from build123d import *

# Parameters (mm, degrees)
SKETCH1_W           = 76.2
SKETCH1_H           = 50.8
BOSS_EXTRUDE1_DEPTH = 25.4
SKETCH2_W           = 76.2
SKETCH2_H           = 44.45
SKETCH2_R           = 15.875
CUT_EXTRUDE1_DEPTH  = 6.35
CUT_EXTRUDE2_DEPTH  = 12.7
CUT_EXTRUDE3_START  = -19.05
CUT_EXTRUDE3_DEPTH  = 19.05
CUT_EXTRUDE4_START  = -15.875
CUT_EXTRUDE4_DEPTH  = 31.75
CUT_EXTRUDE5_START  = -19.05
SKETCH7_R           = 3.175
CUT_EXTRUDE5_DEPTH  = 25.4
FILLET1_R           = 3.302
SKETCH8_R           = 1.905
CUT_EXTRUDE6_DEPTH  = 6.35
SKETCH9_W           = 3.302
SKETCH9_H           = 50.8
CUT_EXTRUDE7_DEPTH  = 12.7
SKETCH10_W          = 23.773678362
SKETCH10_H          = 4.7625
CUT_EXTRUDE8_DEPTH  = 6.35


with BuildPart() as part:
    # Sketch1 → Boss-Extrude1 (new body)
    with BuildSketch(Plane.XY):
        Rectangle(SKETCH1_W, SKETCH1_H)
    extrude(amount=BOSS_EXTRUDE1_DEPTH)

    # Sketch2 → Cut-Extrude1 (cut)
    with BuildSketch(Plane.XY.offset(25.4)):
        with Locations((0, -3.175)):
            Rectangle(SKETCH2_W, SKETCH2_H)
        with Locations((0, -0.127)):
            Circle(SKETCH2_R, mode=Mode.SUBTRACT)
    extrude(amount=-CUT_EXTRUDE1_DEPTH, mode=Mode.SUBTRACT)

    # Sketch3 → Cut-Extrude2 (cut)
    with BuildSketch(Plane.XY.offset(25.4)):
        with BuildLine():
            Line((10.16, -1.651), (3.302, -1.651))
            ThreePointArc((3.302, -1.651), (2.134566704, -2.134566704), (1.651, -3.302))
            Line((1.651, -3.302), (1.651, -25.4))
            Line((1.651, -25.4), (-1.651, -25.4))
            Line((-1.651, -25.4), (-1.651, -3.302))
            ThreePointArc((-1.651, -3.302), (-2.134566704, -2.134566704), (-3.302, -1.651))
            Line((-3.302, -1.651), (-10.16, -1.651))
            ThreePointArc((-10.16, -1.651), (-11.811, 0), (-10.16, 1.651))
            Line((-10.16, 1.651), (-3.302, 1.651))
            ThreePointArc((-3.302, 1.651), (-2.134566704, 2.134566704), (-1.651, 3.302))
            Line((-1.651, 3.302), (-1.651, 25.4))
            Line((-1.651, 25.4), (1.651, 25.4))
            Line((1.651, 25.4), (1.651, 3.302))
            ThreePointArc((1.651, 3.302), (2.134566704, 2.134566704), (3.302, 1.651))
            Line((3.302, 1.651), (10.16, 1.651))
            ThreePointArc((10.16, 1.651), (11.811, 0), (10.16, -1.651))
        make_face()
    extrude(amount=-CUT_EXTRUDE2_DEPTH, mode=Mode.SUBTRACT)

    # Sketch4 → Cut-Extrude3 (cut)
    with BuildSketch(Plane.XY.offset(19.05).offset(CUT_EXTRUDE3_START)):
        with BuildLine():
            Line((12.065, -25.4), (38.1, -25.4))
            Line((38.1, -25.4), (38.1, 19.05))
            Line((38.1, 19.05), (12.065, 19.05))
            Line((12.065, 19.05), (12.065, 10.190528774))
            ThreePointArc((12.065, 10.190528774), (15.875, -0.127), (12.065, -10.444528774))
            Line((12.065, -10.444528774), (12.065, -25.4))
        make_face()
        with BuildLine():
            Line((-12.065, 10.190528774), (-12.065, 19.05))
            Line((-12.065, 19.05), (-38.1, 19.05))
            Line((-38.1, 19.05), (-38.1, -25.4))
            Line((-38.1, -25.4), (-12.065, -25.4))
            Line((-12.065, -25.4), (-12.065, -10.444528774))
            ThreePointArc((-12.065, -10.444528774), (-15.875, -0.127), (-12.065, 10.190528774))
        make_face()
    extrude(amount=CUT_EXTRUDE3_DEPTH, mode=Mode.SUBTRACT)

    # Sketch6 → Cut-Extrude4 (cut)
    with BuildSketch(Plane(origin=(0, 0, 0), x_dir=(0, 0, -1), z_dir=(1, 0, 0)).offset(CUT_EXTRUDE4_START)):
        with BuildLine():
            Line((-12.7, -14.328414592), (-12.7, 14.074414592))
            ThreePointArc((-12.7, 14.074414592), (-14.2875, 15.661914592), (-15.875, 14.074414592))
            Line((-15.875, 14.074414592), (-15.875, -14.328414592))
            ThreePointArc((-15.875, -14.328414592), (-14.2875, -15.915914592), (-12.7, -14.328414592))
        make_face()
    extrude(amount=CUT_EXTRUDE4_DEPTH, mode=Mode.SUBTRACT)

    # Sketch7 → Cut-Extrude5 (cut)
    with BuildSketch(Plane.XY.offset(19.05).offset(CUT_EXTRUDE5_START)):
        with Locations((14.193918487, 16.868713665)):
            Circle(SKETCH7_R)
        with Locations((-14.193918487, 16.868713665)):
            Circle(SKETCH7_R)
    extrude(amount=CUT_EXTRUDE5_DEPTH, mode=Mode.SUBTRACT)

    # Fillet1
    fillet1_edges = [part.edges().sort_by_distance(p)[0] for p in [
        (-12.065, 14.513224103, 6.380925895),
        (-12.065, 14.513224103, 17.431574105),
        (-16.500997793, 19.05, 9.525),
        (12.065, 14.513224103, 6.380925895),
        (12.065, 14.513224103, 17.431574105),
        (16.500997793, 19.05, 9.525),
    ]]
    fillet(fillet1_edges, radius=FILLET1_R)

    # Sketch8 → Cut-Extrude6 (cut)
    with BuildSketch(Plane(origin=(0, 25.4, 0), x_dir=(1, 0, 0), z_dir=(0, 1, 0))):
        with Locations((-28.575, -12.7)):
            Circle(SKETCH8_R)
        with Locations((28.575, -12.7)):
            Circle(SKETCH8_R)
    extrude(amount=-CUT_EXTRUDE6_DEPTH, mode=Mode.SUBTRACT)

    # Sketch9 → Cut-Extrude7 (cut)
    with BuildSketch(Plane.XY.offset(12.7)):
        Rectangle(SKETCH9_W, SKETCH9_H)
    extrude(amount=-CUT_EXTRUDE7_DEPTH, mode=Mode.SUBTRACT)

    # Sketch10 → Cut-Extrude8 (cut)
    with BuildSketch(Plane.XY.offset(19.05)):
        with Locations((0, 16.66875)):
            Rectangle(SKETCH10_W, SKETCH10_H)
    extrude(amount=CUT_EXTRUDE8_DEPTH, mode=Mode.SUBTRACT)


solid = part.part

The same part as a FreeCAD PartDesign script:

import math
import FreeCAD as App
import Part
import Sketcher
Q = App.Units.Quantity


def edges_at(feature, points):
    """Names of the edges that pass closest to the given points."""
    edges = feature.Shape.Edges
    near = lambda p: min(range(len(edges)), key=lambda i: edges[i].distToShape(Part.Vertex(*p))[0])
    return sorted({f"Edge{near(p) + 1}" for p in points})


def add_polygon(sketch, points):
    """Adds a closed chain of lines whose ends are joined by coincident constraints."""
    first, n = sketch.GeometryCount, len(points)
    for a, b in zip(points, points[1:] + points[:1]):
        sketch.addGeometry(Part.LineSegment(App.Vector(*a, 0), App.Vector(*b, 0)), False)
    for i in range(n):
        sketch.addConstraint(Sketcher.Constraint("Coincident", first + i, 2, first + (i + 1) % n, 1))

doc = App.newDocument("Part")
params = doc.addObject("Spreadsheet::Sheet", "Params")
for row, (alias, value) in enumerate([
    ("sketch1_width", "3 in"),
    ("sketch1_height", "2 in"),
    ("pad1_length", "1 in"),
    ("sketch2_diameter", "1.25 in"),
    ("sketch2_width", "3 in"),
    ("sketch2_height", "1.75 in"),
    ("pocket1_length", "0.25 in"),
    ("sketch3_radius", "0.065 in"),
    ("sketch3_width", "0.27 in"),
    ("sketch3_width2", "0.13 in"),
    ("pocket2_length", "0.5 in"),
    ("sketch4_radius", "0.625 in"),
    ("sketch4_height", "1.75 in"),
    ("sketch4_width", "1.025 in"),
    ("pocket3_length", "0.75 in"),
    ("sketch5_radius", "0.0625 in"),
    ("pocket4_length", "1.25 in"),
    ("sketch6_diameter", "0.25 in"),
    ("pocket5_length", "1 in"),
    ("fillet_radius", "0.13 in"),
    ("sketch7_diameter", "0.15 in"),
    ("pocket6_length", "0.25 in"),
    ("sketch8_height", "2 in"),
    ("sketch8_width", "0.13 in"),
    ("pocket7_length", "0.5 in"),
    ("sketch9_height", "0.1875 in"),
    ("pocket8_length", "0.25 in"),
], start=1):
    params.set(f"A{row}", alias)
    params.set(f"B{row}", "=" + value)
    params.setAlias(f"B{row}", alias)

body = doc.addObject("PartDesign::Body", "Body")
body.AllowCompound = True

# Sketch on XY plane
sketch1 = doc.addObject("Sketcher::SketchObject", "Sketch")
body.addObject(sketch1)
sketch1.AttachmentSupport = (doc.XY_Plane, [""])
sketch1.MapMode = "FlatFace"
add_polygon(sketch1, [(-38.1, 25.4), (-38.1, -25.4), (38.1, -25.4), (38.1, 25.4)])  # lines 0-3
sketch1.addConstraint([
    Sketcher.Constraint("Vertical", 0),
    Sketcher.Constraint("Horizontal", 1),
    Sketcher.Constraint("Vertical", 2),
    Sketcher.Constraint("Horizontal", 3),
    Sketcher.Constraint("Symmetric", 0, 2, 2, 2, -1, 1),
    Sketcher.Constraint("DistanceX", 1, 1, 1, 2, Q("3 in")),
    Sketcher.Constraint("DistanceY", 0, 2, 0, 1, Q("2 in")),
])
sketch1.setExpression("Constraints[9]", "Params.sketch1_width")
sketch1.setExpression("Constraints[10]", "Params.sketch1_height")
pad1 = doc.addObject("PartDesign::Pad", "Pad")
body.addObject(pad1)
pad1.Profile = sketch1
pad1.setExpression("Length", "Params.pad1_length")

# Sketch on XY plane
sketch2 = doc.addObject("Sketcher::SketchObject", "Sketch001")
body.addObject(sketch2)
sketch2.AttachmentSupport = (doc.XY_Plane, [""])
sketch2.MapMode = "FlatFace"
sketch2.AttachmentOffset = App.Placement(App.Vector(0, 0, 1 * 25.4), App.Rotation())
add_polygon(sketch2, [(-38.1, 19.05), (-38.1, -25.4), (38.1, -25.4), (38.1, 19.05)])  # lines 0-3
sketch2.addGeometry(Part.Circle(App.Vector(0, -0.127, 0), App.Vector(0, 0, 1), 15.875), False)  # 4
sketch2.addConstraint([
    Sketcher.Constraint("Vertical", 0),
    Sketcher.Constraint("Horizontal", 1),
    Sketcher.Constraint("Vertical", 2),
    Sketcher.Constraint("Horizontal", 3),
    Sketcher.Constraint("PointOnObject", 4, 3, -2),
    Sketcher.Constraint("Diameter", 4, Q("1.25 in")),
    Sketcher.Constraint("DistanceX", 1, 1, 1, 2, Q("3 in")),
    Sketcher.Constraint("DistanceY", 0, 2, -1, 1, Q("1 in")),
    Sketcher.Constraint("DistanceY", 0, 2, 0, 1, Q("1.75 in")),
    Sketcher.Constraint("DistanceX", 0, 2, -1, 1, Q("1.5 in")),
    Sketcher.Constraint("DistanceY", 4, 3, -1, 1, Q("0.005 in")),
])
sketch2.setExpression("Constraints[9]", "Params.sketch2_diameter")
sketch2.setExpression("Constraints[10]", "Params.sketch2_width")
sketch2.setExpression("Constraints[12]", "Params.sketch2_height")
pocket1 = doc.addObject("PartDesign::Pocket", "Pocket")
body.addObject(pocket1)
pocket1.Profile = sketch2
pocket1.setExpression("Length", "Params.pocket1_length")

# Sketch on XY plane
sketch3 = doc.addObject("Sketcher::SketchObject", "Sketch002")
body.addObject(sketch3)
sketch3.AttachmentSupport = (doc.XY_Plane, [""])
sketch3.MapMode = "FlatFace"
sketch3.AttachmentOffset = App.Placement(App.Vector(0, 0, 1 * 25.4), App.Rotation())
sketch3.addGeometry([
    Part.LineSegment(App.Vector(3.302, -1.651, 0), App.Vector(10.16, -1.651, 0)),  # 0
    Part.ArcOfCircle(Part.Circle(App.Vector(10.16, 0, 0), App.Vector(0, 0, 1), 1.651), math.radians(-90), math.radians(90)),  # 1
    Part.LineSegment(App.Vector(10.16, 1.651, 0), App.Vector(3.302, 1.651, 0)),  # 2
    Part.ArcOfCircle(Part.Circle(App.Vector(3.302, 3.302, 0), App.Vector(0, 0, 1), 1.651), math.radians(180), math.radians(270)),  # 3
    Part.LineSegment(App.Vector(1.651, 3.302, 0), App.Vector(1.651, 25.4, 0)),  # 4
    Part.LineSegment(App.Vector(1.651, 25.4, 0), App.Vector(-1.651, 25.4, 0)),  # 5
    Part.LineSegment(App.Vector(-1.651, 25.4, 0), App.Vector(-1.651, 3.302, 0)),  # 6
    Part.ArcOfCircle(Part.Circle(App.Vector(-3.302, 3.302, 0), App.Vector(0, 0, 1), 1.651), math.radians(-90), math.radians(0)),  # 7
    Part.LineSegment(App.Vector(-3.302, 1.651, 0), App.Vector(-10.16, 1.651, 0)),  # 8
    Part.ArcOfCircle(Part.Circle(App.Vector(-10.16, 0, 0), App.Vector(0, 0, 1), 1.651), math.radians(90), math.radians(270)),  # 9
    Part.LineSegment(App.Vector(-10.16, -1.651, 0), App.Vector(-3.302, -1.651, 0)),  # 10
    Part.ArcOfCircle(Part.Circle(App.Vector(-3.302, -3.302, 0), App.Vector(0, 0, 1), 1.651), math.radians(0), math.radians(90)),  # 11
    Part.LineSegment(App.Vector(-1.651, -3.302, 0), App.Vector(-1.651, -25.4, 0)),  # 12
    Part.LineSegment(App.Vector(-1.651, -25.4, 0), App.Vector(1.651, -25.4, 0)),  # 13
    Part.LineSegment(App.Vector(1.651, -25.4, 0), App.Vector(1.651, -3.302, 0)),  # 14
    Part.ArcOfCircle(Part.Circle(App.Vector(3.302, -3.302, 0), App.Vector(0, 0, 1), 1.651), math.radians(90), math.radians(180)),  # 15
], False)
sketch3.addConstraint([
    Sketcher.Constraint("Tangent", 0, 2, 1, 1),
    Sketcher.Constraint("Tangent", 1, 2, 2, 1),
    Sketcher.Constraint("Tangent", 2, 2, 3, 2),
    Sketcher.Constraint("Tangent", 3, 1, 4, 1),
    Sketcher.Constraint("Coincident", 4, 2, 5, 1),
    Sketcher.Constraint("Coincident", 5, 2, 6, 1),
    Sketcher.Constraint("Tangent", 6, 2, 7, 2),
    Sketcher.Constraint("Tangent", 7, 1, 8, 1),
    Sketcher.Constraint("Tangent", 8, 2, 9, 1),
    Sketcher.Constraint("Tangent", 9, 2, 10, 1),
    Sketcher.Constraint("Tangent", 10, 2, 11, 2),
    Sketcher.Constraint("Tangent", 11, 1, 12, 1),
    Sketcher.Constraint("Coincident", 12, 2, 13, 1),
    Sketcher.Constraint("Coincident", 13, 2, 14, 1),
    Sketcher.Constraint("Tangent", 14, 2, 15, 2),
    Sketcher.Constraint("Tangent", 15, 1, 0, 1),
    Sketcher.Constraint("Horizontal", 0),
    Sketcher.Constraint("Horizontal", 2),
    Sketcher.Constraint("Vertical", 4),
    Sketcher.Constraint("Horizontal", 5),
    Sketcher.Constraint("Vertical", 6),
    Sketcher.Constraint("Horizontal", 8),
    Sketcher.Constraint("Horizontal", 10),
    Sketcher.Constraint("Vertical", 12),
    Sketcher.Constraint("Horizontal", 13),
    Sketcher.Constraint("Vertical", 14),
    Sketcher.Constraint("Equal", 1, 3),
    Sketcher.Constraint("Equal", 3, 7),
    Sketcher.Constraint("Equal", 7, 9),
    Sketcher.Constraint("Equal", 9, 11),
    Sketcher.Constraint("Equal", 11, 15),
    Sketcher.Constraint("Symmetric", 1, 3, 9, 3, -1, 1),
    Sketcher.Constraint("Symmetric", 4, 2, 12, 2, -1, 1),
    Sketcher.Constraint("Symmetric", 3, 3, 7, 3, -2),
    Sketcher.Constraint("Vertical", 3, 3, 15, 3),
    Sketcher.Constraint("DistanceY", -1, 1, 4, 2, Q("1 in")),
    Sketcher.Constraint("Radius", 1, Q("0.065 in")),
    Sketcher.Constraint("DistanceX", 0, 1, 0, 2, Q("0.27 in")),
    Sketcher.Constraint("DistanceX", 5, 2, 5, 1, Q("0.13 in")),
])
sketch3.setExpression("Constraints[36]", "Params.sketch3_radius")
sketch3.setExpression("Constraints[37]", "Params.sketch3_width")
sketch3.setExpression("Constraints[38]", "Params.sketch3_width2")
pocket2 = doc.addObject("PartDesign::Pocket", "Pocket001")
body.addObject(pocket2)
pocket2.Profile = sketch3
pocket2.setExpression("Length", "Params.pocket2_length")

# Sketch on XY plane
sketch4 = doc.addObject("Sketcher::SketchObject", "Sketch003")
body.addObject(sketch4)
sketch4.AttachmentSupport = (doc.XY_Plane, [""])
sketch4.MapMode = "FlatFace"
sketch4.addGeometry([
    Part.LineSegment(App.Vector(12.065, -25.4, 0), App.Vector(38.1, -25.4, 0)),  # 0
    Part.LineSegment(App.Vector(38.1, -25.4, 0), App.Vector(38.1, 19.05, 0)),  # 1
    Part.LineSegment(App.Vector(38.1, 19.05, 0), App.Vector(12.065, 19.05, 0)),  # 2
    Part.LineSegment(App.Vector(12.065, 19.05, 0), App.Vector(12.065, 10.190529, 0)),  # 3
    Part.ArcOfCircle(Part.Circle(App.Vector(0, -0.127, 0), App.Vector(0, 0, 1), 15.875), math.radians(-40.535802), math.radians(40.535802)),  # 4
    Part.LineSegment(App.Vector(12.065, -10.444529, 0), App.Vector(12.065, -25.4, 0)),  # 5
    Part.LineSegment(App.Vector(-12.065, 10.190529, 0), App.Vector(-12.065, 19.05, 0)),  # 6
    Part.LineSegment(App.Vector(-12.065, 19.05, 0), App.Vector(-38.1, 19.05, 0)),  # 7
    Part.LineSegment(App.Vector(-38.1, 19.05, 0), App.Vector(-38.1, -25.4, 0)),  # 8
    Part.LineSegment(App.Vector(-38.1, -25.4, 0), App.Vector(-12.065, -25.4, 0)),  # 9
    Part.LineSegment(App.Vector(-12.065, -25.4, 0), App.Vector(-12.065, -10.444529, 0)),  # 10
    Part.ArcOfCircle(Part.Circle(App.Vector(0, -0.127, 0), App.Vector(0, 0, 1), 15.875), math.radians(139.464198), math.radians(220.535802)),  # 11
], False)
sketch4.addConstraint([
    Sketcher.Constraint("Coincident", 0, 2, 1, 1),
    Sketcher.Constraint("Coincident", 1, 2, 2, 1),
    Sketcher.Constraint("Coincident", 2, 2, 3, 1),
    Sketcher.Constraint("Coincident", 3, 2, 4, 2),
    Sketcher.Constraint("Coincident", 4, 1, 5, 1),
    Sketcher.Constraint("Coincident", 5, 2, 0, 1),
    Sketcher.Constraint("Coincident", 6, 2, 7, 1),
    Sketcher.Constraint("Coincident", 7, 2, 8, 1),
    Sketcher.Constraint("Coincident", 8, 2, 9, 1),
    Sketcher.Constraint("Coincident", 9, 2, 10, 1),
    Sketcher.Constraint("Coincident", 10, 2, 11, 2),
    Sketcher.Constraint("Coincident", 11, 1, 6, 1),
    Sketcher.Constraint("Horizontal", 0),
    Sketcher.Constraint("Vertical", 1),
    Sketcher.Constraint("Horizontal", 2),
    Sketcher.Constraint("Vertical", 3),
    Sketcher.Constraint("Vertical", 5),
    Sketcher.Constraint("Vertical", 6),
    Sketcher.Constraint("Horizontal", 7),
    Sketcher.Constraint("Vertical", 8),
    Sketcher.Constraint("Horizontal", 9),
    Sketcher.Constraint("Vertical", 10),
    Sketcher.Constraint("Coincident", 11, 3, 4, 3),
    Sketcher.Constraint("Equal", 4, 11),
    Sketcher.Constraint("Symmetric", 2, 2, 6, 2, -2),
    Sketcher.Constraint("Symmetric", 0, 2, 8, 2, -2),
    Sketcher.Constraint("Symmetric", 4, 1, 10, 2, -2),
    Sketcher.Constraint("Vertical", 3, 2, 4, 1),
    Sketcher.Constraint("DistanceY", 0, 2, -1, 1, Q("1 in")),
    Sketcher.Constraint("Radius", 4, Q("0.625 in")),
    Sketcher.Constraint("DistanceY", 1, 1, 1, 2, Q("1.75 in")),
    Sketcher.Constraint("DistanceX", -1, 1, 0, 2, Q("1.5 in")),
    Sketcher.Constraint("DistanceX", 0, 1, 0, 2, Q("1.025 in")),
    Sketcher.Constraint("DistanceY", 4, 3, -1, 1, Q("0.005 in")),
])
sketch4.setExpression("Constraints[29]", "Params.sketch4_radius")
sketch4.setExpression("Constraints[30]", "Params.sketch4_height")
sketch4.setExpression("Constraints[32]", "Params.sketch4_width")
pocket3 = doc.addObject("PartDesign::Pocket", "Pocket002")
body.addObject(pocket3)
pocket3.Profile = sketch4
pocket3.setExpression("Length", "Params.pocket3_length")
pocket3.Reversed = True

# Sketch on YZ plane
sketch5 = doc.addObject("Sketcher::SketchObject", "Sketch004")
body.addObject(sketch5)
sketch5.AttachmentSupport = (doc.YZ_Plane, [""])
sketch5.MapMode = "FlatFace"
sketch5.AttachmentOffset = App.Placement(App.Vector(0, 0, -0.625 * 25.4), App.Rotation())
sketch5.addGeometry([
    Part.LineSegment(App.Vector(-14.328415, 12.7, 0), App.Vector(14.074415, 12.7, 0)),
    Part.ArcOfCircle(Part.Circle(App.Vector(14.074415, 14.2875, 0), App.Vector(0, 0, 1), 1.5875), math.radians(-90), math.radians(90)),
    Part.LineSegment(App.Vector(14.074415, 15.875, 0), App.Vector(-14.328415, 15.875, 0)),
    Part.ArcOfCircle(Part.Circle(App.Vector(-14.328415, 14.2875, 0), App.Vector(0, 0, 1), 1.5875), math.radians(90), math.radians(270)),
], False)
sketch5.addConstraint([
    Sketcher.Constraint("Tangent", 0, 2, 1, 1),
    Sketcher.Constraint("Tangent", 1, 2, 2, 1),
    Sketcher.Constraint("Tangent", 2, 2, 3, 1),
    Sketcher.Constraint("Tangent", 3, 2, 0, 1),
    Sketcher.Constraint("Horizontal", 0),
    Sketcher.Constraint("Horizontal", 2),
    Sketcher.Constraint("Radius", 1, Q("0.0625 in")),
    Sketcher.Constraint("DistanceY", -1, 1, 0, 2, Q("0.5 in")),
    Sketcher.Constraint("DistanceX", 0, 1, 0, 2, Q("28.402829 mm")),
    Sketcher.Constraint("DistanceX", -1, 1, 1, 3, Q("14.074415 mm")),
])
sketch5.setExpression("Constraints[6]", "Params.sketch5_radius")
pocket4 = doc.addObject("PartDesign::Pocket", "Pocket003")
body.addObject(pocket4)
pocket4.Profile = sketch5
pocket4.setExpression("Length", "Params.pocket4_length")
pocket4.Reversed = True

# Sketch on XY plane
sketch6 = doc.addObject("Sketcher::SketchObject", "Sketch005")
body.addObject(sketch6)
sketch6.AttachmentSupport = (doc.XY_Plane, [""])
sketch6.MapMode = "FlatFace"
sketch6.addGeometry([
    Part.Circle(App.Vector(14.193918, 16.868714, 0), App.Vector(0, 0, 1), 3.175),
    Part.Circle(App.Vector(-14.193918, 16.868714, 0), App.Vector(0, 0, 1), 3.175),
], False)
sketch6.addConstraint([
    Sketcher.Constraint("Equal", 0, 1),
    Sketcher.Constraint("Symmetric", 0, 3, 1, 3, -2),
    Sketcher.Constraint("Diameter", 0, Q("0.25 in")),
    Sketcher.Constraint("DistanceX", -1, 1, 0, 3, Q("14.193918 mm")),
    Sketcher.Constraint("DistanceY", -1, 1, 0, 3, Q("16.868714 mm")),
])
sketch6.setExpression("Constraints[2]", "Params.sketch6_diameter")
pocket5 = doc.addObject("PartDesign::Pocket", "Pocket004")
body.addObject(pocket5)
pocket5.Profile = sketch6
pocket5.setExpression("Length", "Params.pocket5_length")
pocket5.Reversed = True
doc.recompute()

fillet = doc.addObject("PartDesign::Fillet", "Fillet")
body.addObject(fillet)
fillet.Base = (pocket5, edges_at(pocket5, [
    (-12.065, 14.513, 6.381),
    (-12.065, 14.513, 17.432),
    (-16.501, 19.05, 12.7),
    (12.065, 14.513, 6.381),
    (12.065, 14.513, 17.432),
    (16.501, 19.05, 12.7),
]))
fillet.setExpression("Radius", "Params.fillet_radius")

# Sketch on XZ plane
sketch7 = doc.addObject("Sketcher::SketchObject", "Sketch006")
body.addObject(sketch7)
sketch7.AttachmentSupport = (doc.XZ_Plane, [""])
sketch7.MapMode = "FlatFace"
sketch7.AttachmentOffset = App.Placement(App.Vector(0, 0, -1 * 25.4), App.Rotation())
sketch7.addGeometry([
    Part.Circle(App.Vector(-28.575, 12.7, 0), App.Vector(0, 0, 1), 1.905),
    Part.Circle(App.Vector(28.575, 12.7, 0), App.Vector(0, 0, 1), 1.905),
], False)
sketch7.addConstraint([
    Sketcher.Constraint("Equal", 0, 1),
    Sketcher.Constraint("Symmetric", 0, 3, 1, 3, -2),
    Sketcher.Constraint("Diameter", 0, Q("0.15 in")),
    Sketcher.Constraint("DistanceY", -1, 1, 0, 3, Q("0.5 in")),
    Sketcher.Constraint("DistanceX", 0, 3, 1, 3, Q("2.25 in")),
])
sketch7.setExpression("Constraints[2]", "Params.sketch7_diameter")
pocket6 = doc.addObject("PartDesign::Pocket", "Pocket005")
body.addObject(pocket6)
pocket6.Profile = sketch7
pocket6.setExpression("Length", "Params.pocket6_length")
pocket6.Reversed = True

# Sketch on XY plane
sketch8 = doc.addObject("Sketcher::SketchObject", "Sketch007")
body.addObject(sketch8)
sketch8.AttachmentSupport = (doc.XY_Plane, [""])
sketch8.MapMode = "FlatFace"
sketch8.AttachmentOffset = App.Placement(App.Vector(0, 0, 0.5 * 25.4), App.Rotation())
add_polygon(sketch8, [(-1.651, 25.4), (-1.651, -25.4), (1.651, -25.4), (1.651, 25.4)])  # lines 0-3
sketch8.addConstraint([
    Sketcher.Constraint("Vertical", 0),
    Sketcher.Constraint("Horizontal", 1),
    Sketcher.Constraint("Vertical", 2),
    Sketcher.Constraint("Horizontal", 3),
    Sketcher.Constraint("Symmetric", 0, 2, 2, 2, -1, 1),
    Sketcher.Constraint("DistanceY", 0, 2, 0, 1, Q("2 in")),
    Sketcher.Constraint("DistanceX", 1, 1, 1, 2, Q("0.13 in")),
])
sketch8.setExpression("Constraints[9]", "Params.sketch8_height")
sketch8.setExpression("Constraints[10]", "Params.sketch8_width")
pocket7 = doc.addObject("PartDesign::Pocket", "Pocket006")
body.addObject(pocket7)
pocket7.Profile = sketch8
pocket7.setExpression("Length", "Params.pocket7_length")

# Sketch on XY plane
sketch9 = doc.addObject("Sketcher::SketchObject", "Sketch008")
body.addObject(sketch9)
sketch9.AttachmentSupport = (doc.XY_Plane, [""])
sketch9.MapMode = "FlatFace"
sketch9.AttachmentOffset = App.Placement(App.Vector(0, 0, 0.75 * 25.4), App.Rotation())
add_polygon(sketch9, [(-11.886839, 19.05), (-11.886839, 14.2875), (11.886839, 14.2875), (11.886839, 19.05)])  # lines 0-3
sketch9.addConstraint([
    Sketcher.Constraint("Vertical", 0),
    Sketcher.Constraint("Horizontal", 1),
    Sketcher.Constraint("Vertical", 2),
    Sketcher.Constraint("Horizontal", 3),
    Sketcher.Constraint("DistanceY", 0, 2, 0, 1, Q("0.1875 in")),
    Sketcher.Constraint("DistanceY", -1, 1, 2, 2, Q("0.75 in")),
    Sketcher.Constraint("DistanceX", 1, 1, 1, 2, Q("23.773678 mm")),
    Sketcher.Constraint("DistanceX", 0, 2, -1, 1, Q("11.886839 mm")),
])
sketch9.setExpression("Constraints[8]", "Params.sketch9_height")
pocket8 = doc.addObject("PartDesign::Pocket", "Pocket007")
body.addObject(pocket8)
pocket8.Profile = sketch9
pocket8.setExpression("Length", "Params.pocket8_length")
pocket8.Reversed = True

doc.recompute()
